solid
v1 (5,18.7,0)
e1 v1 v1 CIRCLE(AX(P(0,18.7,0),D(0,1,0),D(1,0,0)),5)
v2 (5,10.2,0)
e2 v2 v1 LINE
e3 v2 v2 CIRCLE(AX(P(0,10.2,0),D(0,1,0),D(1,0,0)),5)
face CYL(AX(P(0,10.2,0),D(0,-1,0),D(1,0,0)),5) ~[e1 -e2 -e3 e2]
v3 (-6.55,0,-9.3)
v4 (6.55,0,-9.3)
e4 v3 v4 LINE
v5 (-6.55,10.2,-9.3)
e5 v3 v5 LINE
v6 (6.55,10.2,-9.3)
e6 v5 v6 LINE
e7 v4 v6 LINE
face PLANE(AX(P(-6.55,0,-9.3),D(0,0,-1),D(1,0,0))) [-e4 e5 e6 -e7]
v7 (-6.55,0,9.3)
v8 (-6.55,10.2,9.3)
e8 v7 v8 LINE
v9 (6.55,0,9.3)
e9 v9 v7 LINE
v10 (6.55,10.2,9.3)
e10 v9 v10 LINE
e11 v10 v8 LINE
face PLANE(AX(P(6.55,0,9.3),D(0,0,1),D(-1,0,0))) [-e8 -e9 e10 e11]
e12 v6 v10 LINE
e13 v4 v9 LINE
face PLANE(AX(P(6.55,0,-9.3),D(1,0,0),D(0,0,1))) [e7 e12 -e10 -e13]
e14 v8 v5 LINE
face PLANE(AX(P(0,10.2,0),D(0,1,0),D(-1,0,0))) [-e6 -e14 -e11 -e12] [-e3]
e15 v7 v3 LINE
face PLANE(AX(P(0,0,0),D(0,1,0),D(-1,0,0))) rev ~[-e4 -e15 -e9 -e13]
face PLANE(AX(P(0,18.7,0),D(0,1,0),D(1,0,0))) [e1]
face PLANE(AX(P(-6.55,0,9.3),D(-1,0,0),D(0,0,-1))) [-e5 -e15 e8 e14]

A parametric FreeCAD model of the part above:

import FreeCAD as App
import Part
import Sketcher
from FreeCAD import Vector


def add_polygon(sketch, points):
    """Adds a closed chain of lines whose ends are joined by coincident constraints."""
    first, n = sketch.GeometryCount, len(points)
    for a, b in zip(points, points[1:] + points[:1]):
        sketch.addGeometry(Part.LineSegment(App.Vector(*a, 0), App.Vector(*b, 0)), False)
    for i in range(n):
        sketch.addConstraint(Sketcher.Constraint("Coincident", first + i, 2, first + (i + 1) % n, 1))

doc = App.newDocument("Part")
params = doc.addObject("Spreadsheet::Sheet", "Params")
for row, (alias, value) in enumerate([
    ("sketch1_width", "13.1 mm"),
    ("sketch1_height", "18.6 mm"),
    ("pad1_length", "10.2 mm"),
    ("sketch2_diameter", "10 mm"),
    ("pad2_length", "8.5 mm"),
], start=1):
    params.set(f"A{row}", alias)
    params.set(f"B{row}", "=" + value)
    params.setAlias(f"B{row}", alias)

body = doc.addObject("PartDesign::Body", "Body")

sketch1 = doc.addObject("Sketcher::SketchObject", "Sketch")
body.addObject(sketch1)
sketch1.AttachmentSupport = (doc.XZ_Plane, [""])
sketch1.MapMode = "FlatFace"
add_polygon(sketch1, [(-7, 9), (7, 9), (7, -9), (-7, -9)])
sketch1.addConstraint([
    Sketcher.Constraint("Horizontal", 0),
    Sketcher.Constraint("Vertical", 1),
    Sketcher.Constraint("Horizontal", 2),
    Sketcher.Constraint("Vertical", 3),
    Sketcher.Constraint("Symmetric", 0, 2, 2, 2, -1, 1),
    Sketcher.Constraint("DistanceX", 0, 1, 0, 2, 13.1),
    Sketcher.Constraint("DistanceY", 1, 2, 1, 1, 18.6),
])
sketch1.setExpression("Constraints[9]", "Params.sketch1_width")
sketch1.setExpression("Constraints[10]", "Params.sketch1_height")
pad1 = doc.addObject("PartDesign::Pad", "Pad")
body.addObject(pad1)
pad1.Profile = sketch1
pad1.setExpression("Length", "Params.pad1_length")
pad1.Reversed = True

sketch2 = doc.addObject("Sketcher::SketchObject", "Sketch001")
body.addObject(sketch2)
sketch2.AttachmentSupport = (doc.XZ_Plane, [""])
sketch2.MapMode = "FlatFace"
sketch2.AttachmentOffset = App.Placement(Vector(0, 0, -10.2), App.Rotation())
sketch2.addGeometry(Part.Circle(Vector(0, 0, 0), Vector(0, 0, 1), 5), False)
sketch2.addConstraint([
    Sketcher.Constraint("Coincident", 0, 3, -1, 1),
    Sketcher.Constraint("Diameter", 0, 10.0),
])
sketch2.setExpression("Constraints[1]", "Params.sketch2_diameter")
pad2 = doc.addObject("PartDesign::Pad", "Pad001")
body.addObject(pad2)
pad2.Profile = sketch2
pad2.setExpression("Length", "Params.pad2_length")
pad2.Reversed = True

doc.recompute()
